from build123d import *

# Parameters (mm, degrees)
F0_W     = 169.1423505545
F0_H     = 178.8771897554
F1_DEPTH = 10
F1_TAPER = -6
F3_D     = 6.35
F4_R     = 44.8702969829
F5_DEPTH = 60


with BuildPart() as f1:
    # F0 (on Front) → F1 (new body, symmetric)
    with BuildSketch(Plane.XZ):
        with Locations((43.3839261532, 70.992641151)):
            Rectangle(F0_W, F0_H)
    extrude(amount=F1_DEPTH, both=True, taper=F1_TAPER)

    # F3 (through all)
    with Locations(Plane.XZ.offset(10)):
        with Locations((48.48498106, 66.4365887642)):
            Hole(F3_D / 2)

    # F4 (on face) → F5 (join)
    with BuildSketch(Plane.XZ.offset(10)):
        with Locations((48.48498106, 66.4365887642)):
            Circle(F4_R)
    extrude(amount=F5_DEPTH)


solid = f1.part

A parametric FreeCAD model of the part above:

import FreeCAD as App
import Part
import Sketcher

V = App.Vector
Q = App.Units.Quantity


def add_polygon(sketch, points):
    """Adds a closed chain of lines whose ends are joined by coincident constraints."""
    first, n = sketch.GeometryCount, len(points)
    for a, b in zip(points, points[1:] + points[:1]):
        sketch.addGeometry(Part.LineSegment(App.Vector(*a, 0), App.Vector(*b, 0)), False)
    for i in range(n):
        sketch.addConstraint(Sketcher.Constraint("Coincident", first + i, 2, first + (i + 1) % n, 1))

doc = App.newDocument("Part")
body = doc.addObject("PartDesign::Body", "Body")

# Sketch on XZ plane
sketch1 = body.newObject("Sketcher::SketchObject", "Sketch")
sketch1.AttachmentSupport = (doc.getObject("XZ_Plane"), [""])
sketch1.MapMode = "FlatFace"
add_polygon(sketch1, [(-41, 160), (-41, -18), (128, -18), (128, 160)])  # lines 0-3
sketch1.addConstraint(Sketcher.Constraint("Vertical", 0))
sketch1.addConstraint(Sketcher.Constraint("Horizontal", 1))
sketch1.addConstraint(Sketcher.Constraint("Vertical", 2))
sketch1.addConstraint(Sketcher.Constraint("Horizontal", 3))
sketch1.addConstraint(Sketcher.Constraint("DistanceX", 1, 1, 1, 2, Q("169.142351 mm")))
sketch1.addConstraint(Sketcher.Constraint("DistanceY", 0, 2, 0, 1, Q("178.87719 mm")))
sketch1.addConstraint(Sketcher.Constraint("DistanceX", -1, 1, 1, 2, Q("127.955101 mm")))
sketch1.addConstraint(Sketcher.Constraint("DistanceY", 0, 2, -1, 1, Q("18.445954 mm")))
pad1 = body.newObject("PartDesign::Pad", "Pad")
pad1.Profile = sketch1
pad1.Length = 20
pad1.Midplane = True
pad1.TaperAngle = 6

# Sketch on XZ plane
sketch2 = body.newObject("Sketcher::SketchObject", "Sketch001")
sketch2.AttachmentSupport = (doc.getObject("XZ_Plane"), [""])
sketch2.MapMode = "FlatFace"
sketch2.AttachmentOffset = App.Placement(V(0, 0, 10), App.Rotation())
sketch2.addGeometry(Part.Circle(V(48.5, 66.4, 0), V(0, 0, 1), 3.2), False)
sketch2.addConstraint(Sketcher.Constraint("Diameter", 0, Q("6.35 mm")))
sketch2.addConstraint(Sketcher.Constraint("DistanceX", -1, 1, 0, 3, Q("48.484981 mm")))
sketch2.addConstraint(Sketcher.Constraint("DistanceY", -1, 1, 0, 3, Q("66.436589 mm")))
doc.recompute()
hole = body.newObject("PartDesign::Hole", "Hole")
hole.Profile = sketch2
hole.ThreadType = "None"
hole.Diameter = 6.35
hole.DepthType = "ThroughAll"

# Sketch on XZ plane
sketch3 = body.newObject("Sketcher::SketchObject", "Sketch002")
sketch3.AttachmentSupport = (doc.getObject("XZ_Plane"), [""])
sketch3.MapMode = "FlatFace"
sketch3.AttachmentOffset = App.Placement(V(0, 0, 10), App.Rotation())
sketch3.addGeometry(Part.Circle(V(48, 66, 0), V(0, 0, 1), 45), False)
sketch3.addConstraint(Sketcher.Constraint("Diameter", 0, Q("89.740594 mm")))
sketch3.addConstraint(Sketcher.Constraint("DistanceX", -1, 1, 0, 3, Q("48.484981 mm")))
sketch3.addConstraint(Sketcher.Constraint("DistanceY", -1, 1, 0, 3, Q("66.436589 mm")))
pad2 = body.newObject("PartDesign::Pad", "Pad001")
pad2.Profile = sketch3
pad2.Length = 60

doc.recompute()
